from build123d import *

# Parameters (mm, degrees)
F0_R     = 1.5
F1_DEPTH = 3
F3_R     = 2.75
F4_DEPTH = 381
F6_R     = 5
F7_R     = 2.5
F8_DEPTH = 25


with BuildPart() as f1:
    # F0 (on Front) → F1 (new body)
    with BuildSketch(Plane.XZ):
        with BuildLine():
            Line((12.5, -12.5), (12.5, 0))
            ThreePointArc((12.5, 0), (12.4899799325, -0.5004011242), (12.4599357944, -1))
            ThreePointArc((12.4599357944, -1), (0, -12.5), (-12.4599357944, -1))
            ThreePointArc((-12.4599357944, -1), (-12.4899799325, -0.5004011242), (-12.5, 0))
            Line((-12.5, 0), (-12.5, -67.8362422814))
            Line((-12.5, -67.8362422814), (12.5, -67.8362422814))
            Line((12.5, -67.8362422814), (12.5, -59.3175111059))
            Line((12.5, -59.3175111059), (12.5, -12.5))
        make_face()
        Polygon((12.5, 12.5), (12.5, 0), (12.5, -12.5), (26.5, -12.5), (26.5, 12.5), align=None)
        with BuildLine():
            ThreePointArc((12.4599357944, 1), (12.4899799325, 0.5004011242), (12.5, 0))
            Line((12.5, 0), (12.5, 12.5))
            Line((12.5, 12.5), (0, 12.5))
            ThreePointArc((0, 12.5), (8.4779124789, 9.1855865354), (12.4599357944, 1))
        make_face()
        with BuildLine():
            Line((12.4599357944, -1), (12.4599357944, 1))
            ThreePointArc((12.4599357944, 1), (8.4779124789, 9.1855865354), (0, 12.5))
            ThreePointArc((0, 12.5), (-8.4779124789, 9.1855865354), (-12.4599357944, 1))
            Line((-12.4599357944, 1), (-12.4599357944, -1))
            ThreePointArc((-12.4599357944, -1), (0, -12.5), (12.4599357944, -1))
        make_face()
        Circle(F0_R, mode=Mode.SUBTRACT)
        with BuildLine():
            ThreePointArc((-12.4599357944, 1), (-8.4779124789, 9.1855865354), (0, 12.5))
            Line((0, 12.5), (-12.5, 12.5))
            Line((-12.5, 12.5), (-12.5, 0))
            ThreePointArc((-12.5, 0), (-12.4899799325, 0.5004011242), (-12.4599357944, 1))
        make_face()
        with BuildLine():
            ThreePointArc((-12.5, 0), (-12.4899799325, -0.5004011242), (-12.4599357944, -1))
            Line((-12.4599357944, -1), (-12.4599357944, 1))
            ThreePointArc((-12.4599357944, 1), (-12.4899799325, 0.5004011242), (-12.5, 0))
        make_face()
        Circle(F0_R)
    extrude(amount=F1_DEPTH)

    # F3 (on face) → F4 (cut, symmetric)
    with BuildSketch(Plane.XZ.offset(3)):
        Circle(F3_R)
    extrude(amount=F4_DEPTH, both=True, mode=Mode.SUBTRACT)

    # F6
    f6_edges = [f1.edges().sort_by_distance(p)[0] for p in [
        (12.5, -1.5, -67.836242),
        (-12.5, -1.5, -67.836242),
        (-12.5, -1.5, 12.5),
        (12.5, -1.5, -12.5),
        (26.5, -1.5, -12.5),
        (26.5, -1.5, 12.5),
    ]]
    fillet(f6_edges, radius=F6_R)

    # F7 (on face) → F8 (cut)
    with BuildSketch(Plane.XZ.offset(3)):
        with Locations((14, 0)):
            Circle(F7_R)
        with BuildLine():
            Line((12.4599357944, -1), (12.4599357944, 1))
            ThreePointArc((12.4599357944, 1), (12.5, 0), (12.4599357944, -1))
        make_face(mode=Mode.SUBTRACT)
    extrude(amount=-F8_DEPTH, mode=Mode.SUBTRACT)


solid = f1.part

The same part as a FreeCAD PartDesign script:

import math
import FreeCAD as App
import Part
import Sketcher
Q = App.Units.Quantity


def edges_at(feature, points):
    """Names of the edges that pass closest to the given points."""
    edges = feature.Shape.Edges
    near = lambda p: min(range(len(edges)), key=lambda i: edges[i].distToShape(Part.Vertex(*p))[0])
    return sorted({f"Edge{near(p) + 1}" for p in points})


def add_polygon(sketch, points):
    """Adds a closed chain of lines whose ends are joined by coincident constraints."""
    first, n = sketch.GeometryCount, len(points)
    for a, b in zip(points, points[1:] + points[:1]):
        sketch.addGeometry(Part.LineSegment(App.Vector(*a, 0), App.Vector(*b, 0)), False)
    for i in range(n):
        sketch.addConstraint(Sketcher.Constraint("Coincident", first + i, 2, first + (i + 1) % n, 1))

doc = App.newDocument("Part")
params = doc.addObject("Spreadsheet::Sheet", "Params")
for row, (alias, value) in enumerate([
    ("sketch1_radius", "12.5 mm"),
    ("sketch1_width", "14 mm"),
    ("sketch1_height", "2 mm"),
    ("pad1_length", "3 mm"),
    ("sketch2_diameter", "5.5 mm"),
    ("pocket1_length", "762 mm"),
    ("fillet_radius", "5 mm"),
    ("sketch3_diameter", "5 mm"),
    ("sketch3_radius", "12.5 mm"),
    ("sketch3_height", "2 mm"),
    ("pocket2_length", "25 mm"),
], start=1):
    params.set(f"A{row}", alias)
    params.set(f"B{row}", "=" + value)
    params.setAlias(f"B{row}", alias)

body = doc.addObject("PartDesign::Body", "Body")

sketch1 = body.newObject("Sketcher::SketchObject", "Sketch")
sketch1.AttachmentSupport = (doc.getObject("XZ_Plane"), [""])
sketch1.MapMode = "FlatFace"
add_polygon(sketch1, [(-12.5, 12.5), (-12.5, -67.8), (12.5, -67.8), (12.5, -12.5), (26.5, -12.5), (26.5, 12.5)])
sketch1.addGeometry(Part.ArcOfCircle(Part.Circle(App.Vector(0, 0, 0), App.Vector(0, 0, 1), 12.5), math.radians(-4.59), math.radians(0)), False)
sketch1.addGeometry(Part.LineSegment(App.Vector(12.5, -1, 0), App.Vector(12.5, 1, 0)), False)
sketch1.addGeometry(Part.ArcOfCircle(Part.Circle(App.Vector(0, 0, 0), App.Vector(0, 0, 1), 12.5), math.radians(0), math.radians(4.59)), False)
sketch1.addConstraint([
    Sketcher.Constraint("Coincident", 6, 1, 7, 1),
    Sketcher.Constraint("Coincident", 7, 2, 8, 2),
    Sketcher.Constraint("Tangent", 8, 1, 6, 2),
    Sketcher.Constraint("Vertical", 0),
    Sketcher.Constraint("Horizontal", 1),
    Sketcher.Constraint("Vertical", 2),
    Sketcher.Constraint("Horizontal", 3),
    Sketcher.Constraint("Vertical", 4),
    Sketcher.Constraint("Horizontal", 5),
    Sketcher.Constraint("Vertical", 7),
    Sketcher.Constraint("Coincident", 6, 3, -1, 1),
    Sketcher.Constraint("Equal", 6, 8),
    Sketcher.Constraint("Symmetric", 2, 2, 5, 2, -1, 1),
    Sketcher.Constraint("PointOnObject", 8, 1, -1),
    Sketcher.Constraint("Vertical", 2, 2, 8, 1),
    Sketcher.Constraint("Equal", 1, 4),
    Sketcher.Constraint("Radius", 6, Q("12.5 mm")),
    Sketcher.Constraint("DistanceX", 3, 1, 3, 2, Q("14 mm")),
    Sketcher.Constraint("DistanceY", 7, 1, 7, 2, Q("2 mm")),
    Sketcher.Constraint("DistanceY", 0, 2, 0, 1, Q("80.336242 mm")),
])
sketch1.setExpression("Constraints[22]", "Params.sketch1_radius")
sketch1.setExpression("Constraints[23]", "Params.sketch1_width")
sketch1.setExpression("Constraints[24]", "Params.sketch1_height")
pad1 = body.newObject("PartDesign::Pad", "Pad")
pad1.Profile = sketch1
pad1.setExpression("Length", "Params.pad1_length")

sketch2 = body.newObject("Sketcher::SketchObject", "Sketch001")
sketch2.AttachmentSupport = (doc.getObject("XZ_Plane"), [""])
sketch2.MapMode = "FlatFace"
sketch2.AttachmentOffset = App.Placement(App.Vector(0, 0, 3), App.Rotation())
sketch2.addGeometry(Part.Circle(App.Vector(0, 0, 0), App.Vector(0, 0, 1), 2.8), False)
sketch2.addConstraint([
    Sketcher.Constraint("Coincident", 0, 3, -1, 1),
    Sketcher.Constraint("Diameter", 0, Q("5.5 mm")),
])
sketch2.setExpression("Constraints[1]", "Params.sketch2_diameter")
pocket1 = body.newObject("PartDesign::Pocket", "Pocket")
pocket1.Profile = sketch2
pocket1.setExpression("Length", "Params.pocket1_length")
pocket1.Midplane = True
doc.recompute()

fillet = body.newObject("PartDesign::Fillet", "Fillet")
fillet.Base = (pocket1, edges_at(pocket1, [
    (12.5, -1.5, -67.836),
    (-12.5, -1.5, -67.836),
    (-12.5, -1.5, 12.5),
    (12.5, -1.5, -12.5),
    (26.5, -1.5, -12.5),
    (26.5, -1.5, 12.5),
]))
fillet.setExpression("Radius", "Params.fillet_radius")

sketch3 = body.newObject("Sketcher::SketchObject", "Sketch002")
sketch3.AttachmentSupport = (doc.getObject("XZ_Plane"), [""])
sketch3.MapMode = "FlatFace"
sketch3.AttachmentOffset = App.Placement(App.Vector(0, 0, 3), App.Rotation())
sketch3.addGeometry([
    Part.Circle(App.Vector(14, 0, 0), App.Vector(0, 0, 1), 2.5),
    Part.ArcOfCircle(Part.Circle(App.Vector(0, 0, 0), App.Vector(0, 0, 1), 12.5), math.radians(-4.59), math.radians(4.59)),
    Part.LineSegment(App.Vector(12.5, -1, 0), App.Vector(12.5, 1, 0)),
], False)
sketch3.addConstraint([
    Sketcher.Constraint("Coincident", 1, 1, 2, 1),
    Sketcher.Constraint("Coincident", 2, 2, 1, 2),
    Sketcher.Constraint("Vertical", 2),
    Sketcher.Constraint("Coincident", 1, 3, -1, 1),
    Sketcher.Constraint("PointOnObject", 0, 3, -1),
    Sketcher.Constraint("Diameter", 0, Q("5 mm")),
    Sketcher.Constraint("Radius", 1, Q("12.5 mm")),
    Sketcher.Constraint("DistanceY", 2, 1, 2, 2, Q("2 mm")),
    Sketcher.Constraint("DistanceX", -1, 1, 0, 3, Q("14 mm")),
])
sketch3.setExpression("Constraints[5]", "Params.sketch3_diameter")
sketch3.setExpression("Constraints[6]", "Params.sketch3_radius")
sketch3.setExpression("Constraints[7]", "Params.sketch3_height")
pocket2 = body.newObject("PartDesign::Pocket", "Pocket001")
pocket2.Profile = sketch3
pocket2.setExpression("Length", "Params.pocket2_length")

doc.recompute()
